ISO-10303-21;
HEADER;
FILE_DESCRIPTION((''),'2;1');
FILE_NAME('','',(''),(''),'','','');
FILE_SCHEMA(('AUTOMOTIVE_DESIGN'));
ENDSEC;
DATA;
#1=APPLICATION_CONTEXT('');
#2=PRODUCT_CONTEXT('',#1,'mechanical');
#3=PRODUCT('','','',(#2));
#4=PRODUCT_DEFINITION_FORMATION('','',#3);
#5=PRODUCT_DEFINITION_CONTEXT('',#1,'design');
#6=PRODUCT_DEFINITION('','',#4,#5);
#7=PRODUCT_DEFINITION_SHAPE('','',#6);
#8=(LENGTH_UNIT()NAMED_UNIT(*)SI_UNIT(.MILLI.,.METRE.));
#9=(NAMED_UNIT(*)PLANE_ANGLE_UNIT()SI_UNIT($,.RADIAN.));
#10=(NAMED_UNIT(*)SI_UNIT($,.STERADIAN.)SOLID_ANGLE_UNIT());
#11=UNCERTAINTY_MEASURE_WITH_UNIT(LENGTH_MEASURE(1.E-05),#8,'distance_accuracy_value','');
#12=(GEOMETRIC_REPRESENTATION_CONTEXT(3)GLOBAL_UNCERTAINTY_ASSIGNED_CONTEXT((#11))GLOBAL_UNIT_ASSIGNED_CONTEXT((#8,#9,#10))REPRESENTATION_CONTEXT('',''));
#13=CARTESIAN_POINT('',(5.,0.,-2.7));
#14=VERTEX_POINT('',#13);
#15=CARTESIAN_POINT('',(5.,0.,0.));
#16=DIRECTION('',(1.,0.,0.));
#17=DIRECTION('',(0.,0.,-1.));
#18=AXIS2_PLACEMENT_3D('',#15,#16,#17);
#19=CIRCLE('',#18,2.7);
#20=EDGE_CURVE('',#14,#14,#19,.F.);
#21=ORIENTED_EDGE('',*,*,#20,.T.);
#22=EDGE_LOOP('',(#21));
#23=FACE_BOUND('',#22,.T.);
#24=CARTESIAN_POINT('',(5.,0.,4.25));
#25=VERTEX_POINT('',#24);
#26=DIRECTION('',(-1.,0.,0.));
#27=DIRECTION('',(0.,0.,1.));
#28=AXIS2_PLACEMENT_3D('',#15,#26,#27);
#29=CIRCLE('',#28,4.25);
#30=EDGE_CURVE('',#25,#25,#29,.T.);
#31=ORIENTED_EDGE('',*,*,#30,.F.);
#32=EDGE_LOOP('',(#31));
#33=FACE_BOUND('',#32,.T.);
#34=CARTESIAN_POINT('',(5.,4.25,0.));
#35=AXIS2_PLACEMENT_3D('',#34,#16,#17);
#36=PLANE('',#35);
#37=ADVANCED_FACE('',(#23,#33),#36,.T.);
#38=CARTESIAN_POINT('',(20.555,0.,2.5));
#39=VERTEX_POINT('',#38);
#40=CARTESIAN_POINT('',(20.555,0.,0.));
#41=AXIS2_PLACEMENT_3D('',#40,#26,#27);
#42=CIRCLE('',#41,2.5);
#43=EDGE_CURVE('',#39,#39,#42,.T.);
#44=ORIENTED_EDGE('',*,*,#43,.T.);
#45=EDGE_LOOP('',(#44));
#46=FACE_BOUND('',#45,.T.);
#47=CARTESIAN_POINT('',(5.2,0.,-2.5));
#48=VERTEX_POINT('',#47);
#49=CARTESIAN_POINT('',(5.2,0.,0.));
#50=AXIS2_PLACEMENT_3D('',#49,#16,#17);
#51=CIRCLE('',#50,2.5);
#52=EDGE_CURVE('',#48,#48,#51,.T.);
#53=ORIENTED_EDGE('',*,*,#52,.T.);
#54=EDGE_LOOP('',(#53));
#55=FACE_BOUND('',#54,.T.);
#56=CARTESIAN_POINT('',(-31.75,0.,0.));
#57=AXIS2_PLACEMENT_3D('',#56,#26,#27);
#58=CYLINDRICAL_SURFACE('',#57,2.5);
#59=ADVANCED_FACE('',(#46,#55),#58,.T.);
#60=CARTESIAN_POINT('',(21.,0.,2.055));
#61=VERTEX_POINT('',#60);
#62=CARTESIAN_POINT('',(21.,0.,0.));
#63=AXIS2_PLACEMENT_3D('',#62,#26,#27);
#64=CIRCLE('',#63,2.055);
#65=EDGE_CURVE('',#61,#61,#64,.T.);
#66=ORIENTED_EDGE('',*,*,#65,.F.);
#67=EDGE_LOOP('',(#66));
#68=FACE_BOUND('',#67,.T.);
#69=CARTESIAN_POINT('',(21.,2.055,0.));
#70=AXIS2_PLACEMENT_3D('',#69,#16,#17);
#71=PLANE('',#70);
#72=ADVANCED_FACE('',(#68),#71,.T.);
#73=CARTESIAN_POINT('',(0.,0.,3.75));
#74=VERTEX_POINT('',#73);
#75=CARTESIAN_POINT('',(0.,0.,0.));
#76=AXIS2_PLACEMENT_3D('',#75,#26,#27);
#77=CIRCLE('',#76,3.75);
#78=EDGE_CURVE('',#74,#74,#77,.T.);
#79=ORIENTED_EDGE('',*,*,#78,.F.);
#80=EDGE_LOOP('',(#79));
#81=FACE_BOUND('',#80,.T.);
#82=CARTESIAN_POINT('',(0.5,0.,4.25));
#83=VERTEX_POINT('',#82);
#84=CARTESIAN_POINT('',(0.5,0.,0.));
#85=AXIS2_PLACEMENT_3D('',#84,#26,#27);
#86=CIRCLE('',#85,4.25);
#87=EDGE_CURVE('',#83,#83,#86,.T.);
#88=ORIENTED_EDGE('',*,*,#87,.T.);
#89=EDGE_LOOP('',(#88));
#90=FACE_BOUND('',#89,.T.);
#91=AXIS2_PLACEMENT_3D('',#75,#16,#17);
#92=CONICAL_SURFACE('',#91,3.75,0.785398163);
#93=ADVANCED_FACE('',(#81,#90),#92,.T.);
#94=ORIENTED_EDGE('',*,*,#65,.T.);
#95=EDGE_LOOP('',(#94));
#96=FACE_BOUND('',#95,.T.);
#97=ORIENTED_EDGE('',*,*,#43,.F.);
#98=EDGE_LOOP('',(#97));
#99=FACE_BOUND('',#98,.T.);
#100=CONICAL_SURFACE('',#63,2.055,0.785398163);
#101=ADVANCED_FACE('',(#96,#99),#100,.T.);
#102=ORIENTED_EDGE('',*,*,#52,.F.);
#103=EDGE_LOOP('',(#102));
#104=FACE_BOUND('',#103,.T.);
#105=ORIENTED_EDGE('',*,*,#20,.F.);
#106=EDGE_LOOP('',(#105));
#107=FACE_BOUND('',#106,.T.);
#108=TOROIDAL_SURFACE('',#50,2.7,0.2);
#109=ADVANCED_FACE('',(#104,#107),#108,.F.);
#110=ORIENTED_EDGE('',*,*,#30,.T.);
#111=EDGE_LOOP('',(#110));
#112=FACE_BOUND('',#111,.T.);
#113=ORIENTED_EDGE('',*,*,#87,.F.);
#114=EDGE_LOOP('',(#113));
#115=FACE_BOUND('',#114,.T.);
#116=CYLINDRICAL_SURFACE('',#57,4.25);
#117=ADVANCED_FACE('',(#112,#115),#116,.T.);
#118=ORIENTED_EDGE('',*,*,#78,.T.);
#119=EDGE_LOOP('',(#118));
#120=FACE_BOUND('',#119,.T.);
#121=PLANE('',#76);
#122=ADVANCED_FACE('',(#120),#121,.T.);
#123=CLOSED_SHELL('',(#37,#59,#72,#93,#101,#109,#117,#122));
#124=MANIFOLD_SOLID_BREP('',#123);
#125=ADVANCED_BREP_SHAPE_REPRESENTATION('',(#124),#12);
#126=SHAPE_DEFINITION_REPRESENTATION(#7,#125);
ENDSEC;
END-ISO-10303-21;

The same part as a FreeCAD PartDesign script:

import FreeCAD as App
import Part
import Sketcher

V = App.Vector
Q = App.Units.Quantity


def edges_at(feature, points):
    """Names of the edges that pass closest to the given points."""
    edges = feature.Shape.Edges
    near = lambda p: min(range(len(edges)), key=lambda i: edges[i].distToShape(Part.Vertex(*p))[0])
    return sorted({f"Edge{near(p) + 1}" for p in points})

doc = App.newDocument("Part")
body = doc.addObject("PartDesign::Body", "Body")

sketch1 = body.newObject("Sketcher::SketchObject", "Sketch")
sketch1.AttachmentSupport = (doc.getObject("XY_Plane"), [""])
sketch1.MapMode = "FlatFace"
sketch1.addGeometry([
    Part.LineSegment(V(0, 3.8, 0), V(0, 0, 0)),
    Part.LineSegment(V(0, 0, 0), V(21, 0, 0)),
    Part.LineSegment(V(21, 0, 0), V(21, 2.1, 0)),
    Part.LineSegment(V(21, 2.1, 0), V(20.6, 2.5, 0)),
    Part.LineSegment(V(20.6, 2.5, 0), V(5, 2.5, 0)),
    Part.LineSegment(V(5, 2.5, 0), V(5, 4.2, 0)),
    Part.LineSegment(V(5, 4.2, 0), V(0.5, 4.2, 0)),
    Part.LineSegment(V(0.5, 4.2, 0), V(0, 3.8, 0)),
], False)
sketch1.addConstraint([
    Sketcher.Constraint("Coincident", 0, 2, 1, 1),
    Sketcher.Constraint("Coincident", 1, 2, 2, 1),
    Sketcher.Constraint("Coincident", 2, 2, 3, 1),
    Sketcher.Constraint("Coincident", 3, 2, 4, 1),
    Sketcher.Constraint("Coincident", 4, 2, 5, 1),
    Sketcher.Constraint("Coincident", 5, 2, 6, 1),
    Sketcher.Constraint("Coincident", 6, 2, 7, 1),
    Sketcher.Constraint("Coincident", 7, 2, 0, 1),
    Sketcher.Constraint("Vertical", 0),
    Sketcher.Constraint("Horizontal", 1),
    Sketcher.Constraint("Vertical", 2),
    Sketcher.Constraint("Horizontal", 4),
    Sketcher.Constraint("Vertical", 5),
    Sketcher.Constraint("Horizontal", 6),
    Sketcher.Constraint("Coincident", 0, 2, -1, 1),
    Sketcher.Constraint("Perpendicular", 3, 7),
    Sketcher.Constraint("DistanceX", 1, 1, 1, 2, Q("21 mm")),
    Sketcher.Constraint("Angle", 3, Q("135 deg")),
    Sketcher.Constraint("DistanceX", 6, 2, 6, 1, Q("4.5 mm")),
    Sketcher.Constraint("DistanceX", -1, 1, 4, 2, Q("5 mm")),
    Sketcher.Constraint("DistanceY", 0, 2, 0, 1, Q("3.75 mm")),
    Sketcher.Constraint("DistanceY", 5, 1, 5, 2, Q("1.75 mm")),
    Sketcher.Constraint("DistanceX", 4, 2, 4, 1, Q("15.555 mm")),
])
revolution = body.newObject("PartDesign::Revolution", "Revolution")
revolution.Profile = sketch1
revolution.ReferenceAxis = (sketch1, ["H_Axis"])
revolution.Angle = 360
doc.recompute()

fillet = body.newObject("PartDesign::Fillet", "Fillet")
fillet.Base = (revolution, edges_at(revolution, [(5, 0, -2.5)]))
fillet.Radius = 0.2

doc.recompute()
